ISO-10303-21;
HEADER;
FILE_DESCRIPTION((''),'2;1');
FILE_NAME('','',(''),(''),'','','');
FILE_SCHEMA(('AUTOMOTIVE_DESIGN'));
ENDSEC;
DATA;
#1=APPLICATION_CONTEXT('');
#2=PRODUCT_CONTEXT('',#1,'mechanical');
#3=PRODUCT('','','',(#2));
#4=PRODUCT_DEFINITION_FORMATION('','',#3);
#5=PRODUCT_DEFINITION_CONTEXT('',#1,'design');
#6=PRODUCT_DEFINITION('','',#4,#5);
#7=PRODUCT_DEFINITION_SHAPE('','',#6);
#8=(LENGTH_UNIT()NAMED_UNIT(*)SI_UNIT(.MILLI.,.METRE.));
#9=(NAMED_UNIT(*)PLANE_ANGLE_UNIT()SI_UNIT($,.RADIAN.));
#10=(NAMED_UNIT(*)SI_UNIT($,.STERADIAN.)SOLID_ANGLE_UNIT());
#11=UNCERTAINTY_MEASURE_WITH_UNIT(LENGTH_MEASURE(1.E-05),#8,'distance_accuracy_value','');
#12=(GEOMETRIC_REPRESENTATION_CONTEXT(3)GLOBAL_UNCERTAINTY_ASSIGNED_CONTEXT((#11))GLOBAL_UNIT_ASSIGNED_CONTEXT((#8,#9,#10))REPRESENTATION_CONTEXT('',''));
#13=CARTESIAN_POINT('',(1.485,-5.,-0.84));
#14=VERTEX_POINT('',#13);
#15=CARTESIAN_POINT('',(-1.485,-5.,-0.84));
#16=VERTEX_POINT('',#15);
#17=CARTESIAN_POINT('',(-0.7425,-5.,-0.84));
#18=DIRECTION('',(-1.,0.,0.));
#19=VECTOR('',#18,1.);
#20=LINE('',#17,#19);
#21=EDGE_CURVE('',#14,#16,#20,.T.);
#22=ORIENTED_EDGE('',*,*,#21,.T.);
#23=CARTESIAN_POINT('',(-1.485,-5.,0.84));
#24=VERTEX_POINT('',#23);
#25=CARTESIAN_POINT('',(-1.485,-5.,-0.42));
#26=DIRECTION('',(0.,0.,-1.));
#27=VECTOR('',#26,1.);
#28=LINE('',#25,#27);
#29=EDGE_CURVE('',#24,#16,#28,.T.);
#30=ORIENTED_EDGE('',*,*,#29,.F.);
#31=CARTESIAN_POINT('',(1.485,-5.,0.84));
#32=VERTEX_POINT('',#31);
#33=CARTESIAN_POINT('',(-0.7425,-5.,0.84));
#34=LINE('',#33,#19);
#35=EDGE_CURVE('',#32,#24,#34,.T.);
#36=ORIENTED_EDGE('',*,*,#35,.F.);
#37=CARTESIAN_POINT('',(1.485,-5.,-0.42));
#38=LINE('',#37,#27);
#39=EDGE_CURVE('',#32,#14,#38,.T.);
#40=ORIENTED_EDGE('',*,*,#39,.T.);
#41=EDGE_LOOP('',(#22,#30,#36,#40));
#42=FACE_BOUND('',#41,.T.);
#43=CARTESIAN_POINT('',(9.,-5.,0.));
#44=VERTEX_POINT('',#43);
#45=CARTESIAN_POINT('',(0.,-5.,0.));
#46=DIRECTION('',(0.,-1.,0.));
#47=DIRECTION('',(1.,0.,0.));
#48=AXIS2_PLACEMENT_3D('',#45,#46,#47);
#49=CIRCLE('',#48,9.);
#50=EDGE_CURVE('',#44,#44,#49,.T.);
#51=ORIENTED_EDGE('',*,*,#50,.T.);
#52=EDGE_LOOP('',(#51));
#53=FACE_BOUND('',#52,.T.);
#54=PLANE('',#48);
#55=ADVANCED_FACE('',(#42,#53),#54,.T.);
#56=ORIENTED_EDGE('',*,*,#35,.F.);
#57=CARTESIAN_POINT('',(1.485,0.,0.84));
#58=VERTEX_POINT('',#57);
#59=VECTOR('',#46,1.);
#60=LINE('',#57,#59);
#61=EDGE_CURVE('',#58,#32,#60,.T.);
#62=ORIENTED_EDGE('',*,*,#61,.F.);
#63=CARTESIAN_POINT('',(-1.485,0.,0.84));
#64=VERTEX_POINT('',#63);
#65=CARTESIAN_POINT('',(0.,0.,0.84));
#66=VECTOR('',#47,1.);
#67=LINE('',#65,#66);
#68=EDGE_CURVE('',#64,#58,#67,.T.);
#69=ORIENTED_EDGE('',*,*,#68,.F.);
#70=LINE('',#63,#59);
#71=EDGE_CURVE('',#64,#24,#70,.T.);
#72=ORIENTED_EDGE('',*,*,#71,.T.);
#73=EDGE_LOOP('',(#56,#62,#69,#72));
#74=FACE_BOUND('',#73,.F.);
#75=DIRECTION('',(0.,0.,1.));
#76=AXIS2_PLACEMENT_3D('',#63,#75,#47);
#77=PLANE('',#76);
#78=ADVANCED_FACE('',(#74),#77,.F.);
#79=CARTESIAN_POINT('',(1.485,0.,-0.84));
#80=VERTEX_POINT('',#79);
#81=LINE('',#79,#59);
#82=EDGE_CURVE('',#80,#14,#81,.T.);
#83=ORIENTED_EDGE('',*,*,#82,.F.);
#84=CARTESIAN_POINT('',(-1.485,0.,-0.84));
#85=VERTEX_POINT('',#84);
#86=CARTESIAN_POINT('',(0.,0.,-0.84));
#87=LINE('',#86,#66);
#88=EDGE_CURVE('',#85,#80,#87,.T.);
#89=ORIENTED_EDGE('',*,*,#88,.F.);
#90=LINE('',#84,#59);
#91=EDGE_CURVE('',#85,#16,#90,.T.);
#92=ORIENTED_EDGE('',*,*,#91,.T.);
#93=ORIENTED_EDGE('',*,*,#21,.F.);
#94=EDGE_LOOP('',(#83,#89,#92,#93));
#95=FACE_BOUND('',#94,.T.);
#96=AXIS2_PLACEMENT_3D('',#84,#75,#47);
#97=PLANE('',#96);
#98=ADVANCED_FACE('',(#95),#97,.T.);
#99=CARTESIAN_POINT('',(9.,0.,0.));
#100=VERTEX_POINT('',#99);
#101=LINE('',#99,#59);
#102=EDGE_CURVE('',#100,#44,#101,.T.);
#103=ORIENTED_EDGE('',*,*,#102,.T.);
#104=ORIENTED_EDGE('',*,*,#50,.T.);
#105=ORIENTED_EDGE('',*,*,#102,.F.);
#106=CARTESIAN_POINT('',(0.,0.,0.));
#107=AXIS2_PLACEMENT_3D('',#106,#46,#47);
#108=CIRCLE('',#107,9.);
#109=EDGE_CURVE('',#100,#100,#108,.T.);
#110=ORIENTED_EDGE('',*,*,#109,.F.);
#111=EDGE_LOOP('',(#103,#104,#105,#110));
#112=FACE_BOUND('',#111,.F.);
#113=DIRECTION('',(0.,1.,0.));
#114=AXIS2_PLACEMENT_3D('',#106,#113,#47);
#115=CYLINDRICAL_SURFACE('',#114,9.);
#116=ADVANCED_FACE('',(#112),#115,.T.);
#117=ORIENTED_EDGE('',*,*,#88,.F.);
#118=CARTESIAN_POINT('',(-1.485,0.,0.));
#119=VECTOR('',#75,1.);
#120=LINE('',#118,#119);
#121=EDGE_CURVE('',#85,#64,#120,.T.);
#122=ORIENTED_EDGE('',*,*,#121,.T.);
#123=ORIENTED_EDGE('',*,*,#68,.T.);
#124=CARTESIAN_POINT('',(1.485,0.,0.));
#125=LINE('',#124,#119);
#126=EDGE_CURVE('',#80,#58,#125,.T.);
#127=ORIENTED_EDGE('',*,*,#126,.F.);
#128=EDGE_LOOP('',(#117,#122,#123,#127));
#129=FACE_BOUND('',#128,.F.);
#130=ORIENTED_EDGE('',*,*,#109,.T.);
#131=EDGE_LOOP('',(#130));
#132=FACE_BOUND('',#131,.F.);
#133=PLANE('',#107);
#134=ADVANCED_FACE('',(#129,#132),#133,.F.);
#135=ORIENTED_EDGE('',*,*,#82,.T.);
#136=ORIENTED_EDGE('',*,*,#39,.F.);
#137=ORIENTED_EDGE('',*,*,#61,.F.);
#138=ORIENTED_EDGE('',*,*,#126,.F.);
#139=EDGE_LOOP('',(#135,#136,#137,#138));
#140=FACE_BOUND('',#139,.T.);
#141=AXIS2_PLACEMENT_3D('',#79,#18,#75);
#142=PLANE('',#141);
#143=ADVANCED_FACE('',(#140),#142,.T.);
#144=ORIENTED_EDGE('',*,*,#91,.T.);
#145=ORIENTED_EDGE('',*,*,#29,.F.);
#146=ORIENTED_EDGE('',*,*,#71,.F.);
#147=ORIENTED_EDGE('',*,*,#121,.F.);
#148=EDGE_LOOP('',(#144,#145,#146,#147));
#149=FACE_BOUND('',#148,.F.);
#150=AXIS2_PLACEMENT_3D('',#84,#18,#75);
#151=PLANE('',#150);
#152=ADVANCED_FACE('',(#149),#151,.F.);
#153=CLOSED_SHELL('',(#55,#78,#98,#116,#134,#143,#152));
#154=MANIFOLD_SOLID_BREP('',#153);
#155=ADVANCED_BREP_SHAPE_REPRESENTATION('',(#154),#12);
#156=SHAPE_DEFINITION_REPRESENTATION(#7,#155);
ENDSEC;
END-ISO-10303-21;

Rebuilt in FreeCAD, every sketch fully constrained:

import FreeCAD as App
import Part
import Sketcher

V = App.Vector
Q = App.Units.Quantity


def add_polygon(sketch, points):
    """Adds a closed chain of lines whose ends are joined by coincident constraints."""
    first, n = sketch.GeometryCount, len(points)
    for a, b in zip(points, points[1:] + points[:1]):
        sketch.addGeometry(Part.LineSegment(App.Vector(*a, 0), App.Vector(*b, 0)), False)
    for i in range(n):
        sketch.addConstraint(Sketcher.Constraint("Coincident", first + i, 2, first + (i + 1) % n, 1))

doc = App.newDocument("Part")
body = doc.addObject("PartDesign::Body", "Body")

sketch1 = doc.addObject("Sketcher::SketchObject", "Sketch")
body.addObject(sketch1)
sketch1.AttachmentSupport = (doc.XZ_Plane, [""])
sketch1.MapMode = "FlatFace"
sketch1.addGeometry(Part.Circle(V(0, 0, 0), V(0, 0, 1), 9), False)
sketch1.addConstraint([
    Sketcher.Constraint("Coincident", 0, 3, -1, 1),
    Sketcher.Constraint("Diameter", 0, Q("18 mm")),
])
pad1 = doc.addObject("PartDesign::Pad", "Pad")
body.addObject(pad1)
pad1.Profile = sketch1
pad1.Length = 5

sketch2 = doc.addObject("Sketcher::SketchObject", "Sketch001")
body.addObject(sketch2)
sketch2.AttachmentSupport = (doc.XZ_Plane, [""])
sketch2.MapMode = "FlatFace"
add_polygon(sketch2, [(-1.485, 0.84), (-1.485, -0.84), (1.485, -0.84), (1.485, 0.84)])
sketch2.addConstraint([
    Sketcher.Constraint("Vertical", 0),
    Sketcher.Constraint("Horizontal", 1),
    Sketcher.Constraint("Vertical", 2),
    Sketcher.Constraint("Horizontal", 3),
    Sketcher.Constraint("Symmetric", 0, 2, 2, 2, -1, 1),
    Sketcher.Constraint("DistanceX", 1, 1, 1, 2, Q("2.97 mm")),
    Sketcher.Constraint("DistanceY", 0, 2, 0, 1, Q("1.68 mm")),
])
pocket1 = doc.addObject("PartDesign::Pocket", "Pocket")
body.addObject(pocket1)
pocket1.Profile = sketch2
pocket1.Length = 9.9
pocket1.Reversed = True

doc.recompute()
